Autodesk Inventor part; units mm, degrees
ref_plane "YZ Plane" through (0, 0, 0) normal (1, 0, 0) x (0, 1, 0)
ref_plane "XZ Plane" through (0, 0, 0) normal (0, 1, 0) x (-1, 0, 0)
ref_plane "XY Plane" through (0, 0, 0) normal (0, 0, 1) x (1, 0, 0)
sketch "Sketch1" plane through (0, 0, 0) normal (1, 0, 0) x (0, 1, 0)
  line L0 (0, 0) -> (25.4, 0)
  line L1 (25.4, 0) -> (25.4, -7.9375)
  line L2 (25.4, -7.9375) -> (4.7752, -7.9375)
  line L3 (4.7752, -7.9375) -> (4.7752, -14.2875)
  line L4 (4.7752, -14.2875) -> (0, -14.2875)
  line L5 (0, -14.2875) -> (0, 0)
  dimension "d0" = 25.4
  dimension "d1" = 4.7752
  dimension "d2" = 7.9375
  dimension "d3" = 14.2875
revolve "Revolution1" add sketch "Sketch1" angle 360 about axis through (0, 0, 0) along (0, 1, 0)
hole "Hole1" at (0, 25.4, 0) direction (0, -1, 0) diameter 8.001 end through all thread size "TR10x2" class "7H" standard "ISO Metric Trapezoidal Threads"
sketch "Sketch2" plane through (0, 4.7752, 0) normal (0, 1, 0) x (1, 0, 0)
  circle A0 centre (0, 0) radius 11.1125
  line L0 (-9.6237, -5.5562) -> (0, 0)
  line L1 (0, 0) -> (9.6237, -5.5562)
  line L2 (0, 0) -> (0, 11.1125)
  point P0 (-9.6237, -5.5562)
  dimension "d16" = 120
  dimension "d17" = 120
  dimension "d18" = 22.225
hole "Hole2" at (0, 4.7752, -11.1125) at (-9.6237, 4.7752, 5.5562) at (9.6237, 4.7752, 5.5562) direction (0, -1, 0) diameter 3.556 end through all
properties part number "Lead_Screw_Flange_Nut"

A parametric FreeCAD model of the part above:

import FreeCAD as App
import Part
import Sketcher
from FreeCAD import Vector
Q = App.Units.Quantity

doc = App.newDocument("Part")
body = doc.addObject("PartDesign::Body", "Body")

# Sketch on YZ plane
sketch1 = doc.addObject("Sketcher::SketchObject", "Sketch")
body.addObject(sketch1)
sketch1.AttachmentSupport = (doc.YZ_Plane, [""])
sketch1.MapMode = "FlatFace"
sketch1.addGeometry([
    Part.LineSegment(Vector(25.4, 0, 0), Vector(0, 0, 0)),  # 0
    Part.LineSegment(Vector(0, 0, 0), Vector(0, -14.3, 0)),  # 1
    Part.LineSegment(Vector(0, -14.3, 0), Vector(4.8, -14.3, 0)),  # 2
    Part.LineSegment(Vector(4.8, -14.3, 0), Vector(4.8, -7.9, 0)),  # 3
    Part.LineSegment(Vector(4.8, -7.9, 0), Vector(25.4, -7.9, 0)),  # 4
    Part.LineSegment(Vector(25.4, -7.9, 0), Vector(25.4, 0, 0)),  # 5
], False)
sketch1.addConstraint([
    Sketcher.Constraint("Coincident", 0, 2, 1, 1),
    Sketcher.Constraint("Coincident", 1, 2, 2, 1),
    Sketcher.Constraint("Coincident", 2, 2, 3, 1),
    Sketcher.Constraint("Coincident", 3, 2, 4, 1),
    Sketcher.Constraint("Coincident", 4, 2, 5, 1),
    Sketcher.Constraint("Coincident", 5, 2, 0, 1),
    Sketcher.Constraint("Horizontal", 0),
    Sketcher.Constraint("Vertical", 1),
    Sketcher.Constraint("Horizontal", 2),
    Sketcher.Constraint("Vertical", 3),
    Sketcher.Constraint("Horizontal", 4),
    Sketcher.Constraint("Vertical", 5),
    Sketcher.Constraint("Coincident", 0, 2, -1, 1),
    Sketcher.Constraint("DistanceX", 0, 2, 0, 1, Q("1 in")),
    Sketcher.Constraint("DistanceX", 2, 1, 2, 2, Q("0.188 in")),
    Sketcher.Constraint("DistanceY", 1, 2, 1, 1, Q("0.5625 in")),
    Sketcher.Constraint("DistanceY", 5, 1, 5, 2, Q("0.3125 in")),
])
revolution = doc.addObject("PartDesign::Revolution", "Revolution")
body.addObject(revolution)
revolution.Profile = sketch1
revolution.ReferenceAxis = (sketch1, ["H_Axis"])
revolution.Angle = 360

# Sketch on XZ plane
sketch2 = doc.addObject("Sketcher::SketchObject", "Sketch001")
body.addObject(sketch2)
sketch2.AttachmentSupport = (doc.XZ_Plane, [""])
sketch2.MapMode = "FlatFace"
sketch2.AttachmentOffset = App.Placement(Vector(0, 0, -1 * 25.4), App.Rotation())
sketch2.addGeometry(Part.Circle(Vector(0, 0, 0), Vector(0, 0, 1), 4), False)
sketch2.addConstraint([
    Sketcher.Constraint("Coincident", 0, 3, -1, 1),
    Sketcher.Constraint("Diameter", 0, Q("0.315 in")),
])
doc.recompute()
hole = doc.addObject("PartDesign::Hole", "Hole")
body.addObject(hole)
hole.Profile = sketch2
hole.ThreadType = "None"
hole.Diameter = Q("0.315 in")
hole.DepthType = "ThroughAll"
hole.Reversed = True

# Sketch on XZ plane
sketch3 = doc.addObject("Sketcher::SketchObject", "Sketch002")
body.addObject(sketch3)
sketch3.AttachmentSupport = (doc.XZ_Plane, [""])
sketch3.MapMode = "FlatFace"
sketch3.AttachmentOffset = App.Placement(Vector(0, 0, -0.188 * 25.4), App.Rotation())
sketch3.addGeometry([
    Part.Circle(Vector(0, -11.1, 0), Vector(0, 0, 1), 1.8),
    Part.Circle(Vector(-9.6, 5.6, 0), Vector(0, 0, 1), 1.8),
    Part.Circle(Vector(9.6, 5.6, 0), Vector(0, 0, 1), 1.8),
], False)
sketch3.addConstraint([
    Sketcher.Constraint("Equal", 0, 1),
    Sketcher.Constraint("Equal", 1, 2),
    Sketcher.Constraint("Symmetric", 1, 3, 2, 3, -2),
    Sketcher.Constraint("PointOnObject", 0, 3, -2),
    Sketcher.Constraint("Diameter", 0, Q("0.14 in")),
    Sketcher.Constraint("DistanceY", 0, 3, -1, 1, Q("0.4375 in")),
    Sketcher.Constraint("DistanceY", -1, 1, 1, 3, Q("0.218748 in")),
    Sketcher.Constraint("DistanceX", 1, 3, -1, 1, 9.6237),
])
doc.recompute()
hole2 = doc.addObject("PartDesign::Hole", "Hole001")
body.addObject(hole2)
hole2.Profile = sketch3
hole2.ThreadType = "None"
hole2.Diameter = Q("0.14 in")
hole2.DepthType = "ThroughAll"
hole2.Reversed = True

doc.recompute()
